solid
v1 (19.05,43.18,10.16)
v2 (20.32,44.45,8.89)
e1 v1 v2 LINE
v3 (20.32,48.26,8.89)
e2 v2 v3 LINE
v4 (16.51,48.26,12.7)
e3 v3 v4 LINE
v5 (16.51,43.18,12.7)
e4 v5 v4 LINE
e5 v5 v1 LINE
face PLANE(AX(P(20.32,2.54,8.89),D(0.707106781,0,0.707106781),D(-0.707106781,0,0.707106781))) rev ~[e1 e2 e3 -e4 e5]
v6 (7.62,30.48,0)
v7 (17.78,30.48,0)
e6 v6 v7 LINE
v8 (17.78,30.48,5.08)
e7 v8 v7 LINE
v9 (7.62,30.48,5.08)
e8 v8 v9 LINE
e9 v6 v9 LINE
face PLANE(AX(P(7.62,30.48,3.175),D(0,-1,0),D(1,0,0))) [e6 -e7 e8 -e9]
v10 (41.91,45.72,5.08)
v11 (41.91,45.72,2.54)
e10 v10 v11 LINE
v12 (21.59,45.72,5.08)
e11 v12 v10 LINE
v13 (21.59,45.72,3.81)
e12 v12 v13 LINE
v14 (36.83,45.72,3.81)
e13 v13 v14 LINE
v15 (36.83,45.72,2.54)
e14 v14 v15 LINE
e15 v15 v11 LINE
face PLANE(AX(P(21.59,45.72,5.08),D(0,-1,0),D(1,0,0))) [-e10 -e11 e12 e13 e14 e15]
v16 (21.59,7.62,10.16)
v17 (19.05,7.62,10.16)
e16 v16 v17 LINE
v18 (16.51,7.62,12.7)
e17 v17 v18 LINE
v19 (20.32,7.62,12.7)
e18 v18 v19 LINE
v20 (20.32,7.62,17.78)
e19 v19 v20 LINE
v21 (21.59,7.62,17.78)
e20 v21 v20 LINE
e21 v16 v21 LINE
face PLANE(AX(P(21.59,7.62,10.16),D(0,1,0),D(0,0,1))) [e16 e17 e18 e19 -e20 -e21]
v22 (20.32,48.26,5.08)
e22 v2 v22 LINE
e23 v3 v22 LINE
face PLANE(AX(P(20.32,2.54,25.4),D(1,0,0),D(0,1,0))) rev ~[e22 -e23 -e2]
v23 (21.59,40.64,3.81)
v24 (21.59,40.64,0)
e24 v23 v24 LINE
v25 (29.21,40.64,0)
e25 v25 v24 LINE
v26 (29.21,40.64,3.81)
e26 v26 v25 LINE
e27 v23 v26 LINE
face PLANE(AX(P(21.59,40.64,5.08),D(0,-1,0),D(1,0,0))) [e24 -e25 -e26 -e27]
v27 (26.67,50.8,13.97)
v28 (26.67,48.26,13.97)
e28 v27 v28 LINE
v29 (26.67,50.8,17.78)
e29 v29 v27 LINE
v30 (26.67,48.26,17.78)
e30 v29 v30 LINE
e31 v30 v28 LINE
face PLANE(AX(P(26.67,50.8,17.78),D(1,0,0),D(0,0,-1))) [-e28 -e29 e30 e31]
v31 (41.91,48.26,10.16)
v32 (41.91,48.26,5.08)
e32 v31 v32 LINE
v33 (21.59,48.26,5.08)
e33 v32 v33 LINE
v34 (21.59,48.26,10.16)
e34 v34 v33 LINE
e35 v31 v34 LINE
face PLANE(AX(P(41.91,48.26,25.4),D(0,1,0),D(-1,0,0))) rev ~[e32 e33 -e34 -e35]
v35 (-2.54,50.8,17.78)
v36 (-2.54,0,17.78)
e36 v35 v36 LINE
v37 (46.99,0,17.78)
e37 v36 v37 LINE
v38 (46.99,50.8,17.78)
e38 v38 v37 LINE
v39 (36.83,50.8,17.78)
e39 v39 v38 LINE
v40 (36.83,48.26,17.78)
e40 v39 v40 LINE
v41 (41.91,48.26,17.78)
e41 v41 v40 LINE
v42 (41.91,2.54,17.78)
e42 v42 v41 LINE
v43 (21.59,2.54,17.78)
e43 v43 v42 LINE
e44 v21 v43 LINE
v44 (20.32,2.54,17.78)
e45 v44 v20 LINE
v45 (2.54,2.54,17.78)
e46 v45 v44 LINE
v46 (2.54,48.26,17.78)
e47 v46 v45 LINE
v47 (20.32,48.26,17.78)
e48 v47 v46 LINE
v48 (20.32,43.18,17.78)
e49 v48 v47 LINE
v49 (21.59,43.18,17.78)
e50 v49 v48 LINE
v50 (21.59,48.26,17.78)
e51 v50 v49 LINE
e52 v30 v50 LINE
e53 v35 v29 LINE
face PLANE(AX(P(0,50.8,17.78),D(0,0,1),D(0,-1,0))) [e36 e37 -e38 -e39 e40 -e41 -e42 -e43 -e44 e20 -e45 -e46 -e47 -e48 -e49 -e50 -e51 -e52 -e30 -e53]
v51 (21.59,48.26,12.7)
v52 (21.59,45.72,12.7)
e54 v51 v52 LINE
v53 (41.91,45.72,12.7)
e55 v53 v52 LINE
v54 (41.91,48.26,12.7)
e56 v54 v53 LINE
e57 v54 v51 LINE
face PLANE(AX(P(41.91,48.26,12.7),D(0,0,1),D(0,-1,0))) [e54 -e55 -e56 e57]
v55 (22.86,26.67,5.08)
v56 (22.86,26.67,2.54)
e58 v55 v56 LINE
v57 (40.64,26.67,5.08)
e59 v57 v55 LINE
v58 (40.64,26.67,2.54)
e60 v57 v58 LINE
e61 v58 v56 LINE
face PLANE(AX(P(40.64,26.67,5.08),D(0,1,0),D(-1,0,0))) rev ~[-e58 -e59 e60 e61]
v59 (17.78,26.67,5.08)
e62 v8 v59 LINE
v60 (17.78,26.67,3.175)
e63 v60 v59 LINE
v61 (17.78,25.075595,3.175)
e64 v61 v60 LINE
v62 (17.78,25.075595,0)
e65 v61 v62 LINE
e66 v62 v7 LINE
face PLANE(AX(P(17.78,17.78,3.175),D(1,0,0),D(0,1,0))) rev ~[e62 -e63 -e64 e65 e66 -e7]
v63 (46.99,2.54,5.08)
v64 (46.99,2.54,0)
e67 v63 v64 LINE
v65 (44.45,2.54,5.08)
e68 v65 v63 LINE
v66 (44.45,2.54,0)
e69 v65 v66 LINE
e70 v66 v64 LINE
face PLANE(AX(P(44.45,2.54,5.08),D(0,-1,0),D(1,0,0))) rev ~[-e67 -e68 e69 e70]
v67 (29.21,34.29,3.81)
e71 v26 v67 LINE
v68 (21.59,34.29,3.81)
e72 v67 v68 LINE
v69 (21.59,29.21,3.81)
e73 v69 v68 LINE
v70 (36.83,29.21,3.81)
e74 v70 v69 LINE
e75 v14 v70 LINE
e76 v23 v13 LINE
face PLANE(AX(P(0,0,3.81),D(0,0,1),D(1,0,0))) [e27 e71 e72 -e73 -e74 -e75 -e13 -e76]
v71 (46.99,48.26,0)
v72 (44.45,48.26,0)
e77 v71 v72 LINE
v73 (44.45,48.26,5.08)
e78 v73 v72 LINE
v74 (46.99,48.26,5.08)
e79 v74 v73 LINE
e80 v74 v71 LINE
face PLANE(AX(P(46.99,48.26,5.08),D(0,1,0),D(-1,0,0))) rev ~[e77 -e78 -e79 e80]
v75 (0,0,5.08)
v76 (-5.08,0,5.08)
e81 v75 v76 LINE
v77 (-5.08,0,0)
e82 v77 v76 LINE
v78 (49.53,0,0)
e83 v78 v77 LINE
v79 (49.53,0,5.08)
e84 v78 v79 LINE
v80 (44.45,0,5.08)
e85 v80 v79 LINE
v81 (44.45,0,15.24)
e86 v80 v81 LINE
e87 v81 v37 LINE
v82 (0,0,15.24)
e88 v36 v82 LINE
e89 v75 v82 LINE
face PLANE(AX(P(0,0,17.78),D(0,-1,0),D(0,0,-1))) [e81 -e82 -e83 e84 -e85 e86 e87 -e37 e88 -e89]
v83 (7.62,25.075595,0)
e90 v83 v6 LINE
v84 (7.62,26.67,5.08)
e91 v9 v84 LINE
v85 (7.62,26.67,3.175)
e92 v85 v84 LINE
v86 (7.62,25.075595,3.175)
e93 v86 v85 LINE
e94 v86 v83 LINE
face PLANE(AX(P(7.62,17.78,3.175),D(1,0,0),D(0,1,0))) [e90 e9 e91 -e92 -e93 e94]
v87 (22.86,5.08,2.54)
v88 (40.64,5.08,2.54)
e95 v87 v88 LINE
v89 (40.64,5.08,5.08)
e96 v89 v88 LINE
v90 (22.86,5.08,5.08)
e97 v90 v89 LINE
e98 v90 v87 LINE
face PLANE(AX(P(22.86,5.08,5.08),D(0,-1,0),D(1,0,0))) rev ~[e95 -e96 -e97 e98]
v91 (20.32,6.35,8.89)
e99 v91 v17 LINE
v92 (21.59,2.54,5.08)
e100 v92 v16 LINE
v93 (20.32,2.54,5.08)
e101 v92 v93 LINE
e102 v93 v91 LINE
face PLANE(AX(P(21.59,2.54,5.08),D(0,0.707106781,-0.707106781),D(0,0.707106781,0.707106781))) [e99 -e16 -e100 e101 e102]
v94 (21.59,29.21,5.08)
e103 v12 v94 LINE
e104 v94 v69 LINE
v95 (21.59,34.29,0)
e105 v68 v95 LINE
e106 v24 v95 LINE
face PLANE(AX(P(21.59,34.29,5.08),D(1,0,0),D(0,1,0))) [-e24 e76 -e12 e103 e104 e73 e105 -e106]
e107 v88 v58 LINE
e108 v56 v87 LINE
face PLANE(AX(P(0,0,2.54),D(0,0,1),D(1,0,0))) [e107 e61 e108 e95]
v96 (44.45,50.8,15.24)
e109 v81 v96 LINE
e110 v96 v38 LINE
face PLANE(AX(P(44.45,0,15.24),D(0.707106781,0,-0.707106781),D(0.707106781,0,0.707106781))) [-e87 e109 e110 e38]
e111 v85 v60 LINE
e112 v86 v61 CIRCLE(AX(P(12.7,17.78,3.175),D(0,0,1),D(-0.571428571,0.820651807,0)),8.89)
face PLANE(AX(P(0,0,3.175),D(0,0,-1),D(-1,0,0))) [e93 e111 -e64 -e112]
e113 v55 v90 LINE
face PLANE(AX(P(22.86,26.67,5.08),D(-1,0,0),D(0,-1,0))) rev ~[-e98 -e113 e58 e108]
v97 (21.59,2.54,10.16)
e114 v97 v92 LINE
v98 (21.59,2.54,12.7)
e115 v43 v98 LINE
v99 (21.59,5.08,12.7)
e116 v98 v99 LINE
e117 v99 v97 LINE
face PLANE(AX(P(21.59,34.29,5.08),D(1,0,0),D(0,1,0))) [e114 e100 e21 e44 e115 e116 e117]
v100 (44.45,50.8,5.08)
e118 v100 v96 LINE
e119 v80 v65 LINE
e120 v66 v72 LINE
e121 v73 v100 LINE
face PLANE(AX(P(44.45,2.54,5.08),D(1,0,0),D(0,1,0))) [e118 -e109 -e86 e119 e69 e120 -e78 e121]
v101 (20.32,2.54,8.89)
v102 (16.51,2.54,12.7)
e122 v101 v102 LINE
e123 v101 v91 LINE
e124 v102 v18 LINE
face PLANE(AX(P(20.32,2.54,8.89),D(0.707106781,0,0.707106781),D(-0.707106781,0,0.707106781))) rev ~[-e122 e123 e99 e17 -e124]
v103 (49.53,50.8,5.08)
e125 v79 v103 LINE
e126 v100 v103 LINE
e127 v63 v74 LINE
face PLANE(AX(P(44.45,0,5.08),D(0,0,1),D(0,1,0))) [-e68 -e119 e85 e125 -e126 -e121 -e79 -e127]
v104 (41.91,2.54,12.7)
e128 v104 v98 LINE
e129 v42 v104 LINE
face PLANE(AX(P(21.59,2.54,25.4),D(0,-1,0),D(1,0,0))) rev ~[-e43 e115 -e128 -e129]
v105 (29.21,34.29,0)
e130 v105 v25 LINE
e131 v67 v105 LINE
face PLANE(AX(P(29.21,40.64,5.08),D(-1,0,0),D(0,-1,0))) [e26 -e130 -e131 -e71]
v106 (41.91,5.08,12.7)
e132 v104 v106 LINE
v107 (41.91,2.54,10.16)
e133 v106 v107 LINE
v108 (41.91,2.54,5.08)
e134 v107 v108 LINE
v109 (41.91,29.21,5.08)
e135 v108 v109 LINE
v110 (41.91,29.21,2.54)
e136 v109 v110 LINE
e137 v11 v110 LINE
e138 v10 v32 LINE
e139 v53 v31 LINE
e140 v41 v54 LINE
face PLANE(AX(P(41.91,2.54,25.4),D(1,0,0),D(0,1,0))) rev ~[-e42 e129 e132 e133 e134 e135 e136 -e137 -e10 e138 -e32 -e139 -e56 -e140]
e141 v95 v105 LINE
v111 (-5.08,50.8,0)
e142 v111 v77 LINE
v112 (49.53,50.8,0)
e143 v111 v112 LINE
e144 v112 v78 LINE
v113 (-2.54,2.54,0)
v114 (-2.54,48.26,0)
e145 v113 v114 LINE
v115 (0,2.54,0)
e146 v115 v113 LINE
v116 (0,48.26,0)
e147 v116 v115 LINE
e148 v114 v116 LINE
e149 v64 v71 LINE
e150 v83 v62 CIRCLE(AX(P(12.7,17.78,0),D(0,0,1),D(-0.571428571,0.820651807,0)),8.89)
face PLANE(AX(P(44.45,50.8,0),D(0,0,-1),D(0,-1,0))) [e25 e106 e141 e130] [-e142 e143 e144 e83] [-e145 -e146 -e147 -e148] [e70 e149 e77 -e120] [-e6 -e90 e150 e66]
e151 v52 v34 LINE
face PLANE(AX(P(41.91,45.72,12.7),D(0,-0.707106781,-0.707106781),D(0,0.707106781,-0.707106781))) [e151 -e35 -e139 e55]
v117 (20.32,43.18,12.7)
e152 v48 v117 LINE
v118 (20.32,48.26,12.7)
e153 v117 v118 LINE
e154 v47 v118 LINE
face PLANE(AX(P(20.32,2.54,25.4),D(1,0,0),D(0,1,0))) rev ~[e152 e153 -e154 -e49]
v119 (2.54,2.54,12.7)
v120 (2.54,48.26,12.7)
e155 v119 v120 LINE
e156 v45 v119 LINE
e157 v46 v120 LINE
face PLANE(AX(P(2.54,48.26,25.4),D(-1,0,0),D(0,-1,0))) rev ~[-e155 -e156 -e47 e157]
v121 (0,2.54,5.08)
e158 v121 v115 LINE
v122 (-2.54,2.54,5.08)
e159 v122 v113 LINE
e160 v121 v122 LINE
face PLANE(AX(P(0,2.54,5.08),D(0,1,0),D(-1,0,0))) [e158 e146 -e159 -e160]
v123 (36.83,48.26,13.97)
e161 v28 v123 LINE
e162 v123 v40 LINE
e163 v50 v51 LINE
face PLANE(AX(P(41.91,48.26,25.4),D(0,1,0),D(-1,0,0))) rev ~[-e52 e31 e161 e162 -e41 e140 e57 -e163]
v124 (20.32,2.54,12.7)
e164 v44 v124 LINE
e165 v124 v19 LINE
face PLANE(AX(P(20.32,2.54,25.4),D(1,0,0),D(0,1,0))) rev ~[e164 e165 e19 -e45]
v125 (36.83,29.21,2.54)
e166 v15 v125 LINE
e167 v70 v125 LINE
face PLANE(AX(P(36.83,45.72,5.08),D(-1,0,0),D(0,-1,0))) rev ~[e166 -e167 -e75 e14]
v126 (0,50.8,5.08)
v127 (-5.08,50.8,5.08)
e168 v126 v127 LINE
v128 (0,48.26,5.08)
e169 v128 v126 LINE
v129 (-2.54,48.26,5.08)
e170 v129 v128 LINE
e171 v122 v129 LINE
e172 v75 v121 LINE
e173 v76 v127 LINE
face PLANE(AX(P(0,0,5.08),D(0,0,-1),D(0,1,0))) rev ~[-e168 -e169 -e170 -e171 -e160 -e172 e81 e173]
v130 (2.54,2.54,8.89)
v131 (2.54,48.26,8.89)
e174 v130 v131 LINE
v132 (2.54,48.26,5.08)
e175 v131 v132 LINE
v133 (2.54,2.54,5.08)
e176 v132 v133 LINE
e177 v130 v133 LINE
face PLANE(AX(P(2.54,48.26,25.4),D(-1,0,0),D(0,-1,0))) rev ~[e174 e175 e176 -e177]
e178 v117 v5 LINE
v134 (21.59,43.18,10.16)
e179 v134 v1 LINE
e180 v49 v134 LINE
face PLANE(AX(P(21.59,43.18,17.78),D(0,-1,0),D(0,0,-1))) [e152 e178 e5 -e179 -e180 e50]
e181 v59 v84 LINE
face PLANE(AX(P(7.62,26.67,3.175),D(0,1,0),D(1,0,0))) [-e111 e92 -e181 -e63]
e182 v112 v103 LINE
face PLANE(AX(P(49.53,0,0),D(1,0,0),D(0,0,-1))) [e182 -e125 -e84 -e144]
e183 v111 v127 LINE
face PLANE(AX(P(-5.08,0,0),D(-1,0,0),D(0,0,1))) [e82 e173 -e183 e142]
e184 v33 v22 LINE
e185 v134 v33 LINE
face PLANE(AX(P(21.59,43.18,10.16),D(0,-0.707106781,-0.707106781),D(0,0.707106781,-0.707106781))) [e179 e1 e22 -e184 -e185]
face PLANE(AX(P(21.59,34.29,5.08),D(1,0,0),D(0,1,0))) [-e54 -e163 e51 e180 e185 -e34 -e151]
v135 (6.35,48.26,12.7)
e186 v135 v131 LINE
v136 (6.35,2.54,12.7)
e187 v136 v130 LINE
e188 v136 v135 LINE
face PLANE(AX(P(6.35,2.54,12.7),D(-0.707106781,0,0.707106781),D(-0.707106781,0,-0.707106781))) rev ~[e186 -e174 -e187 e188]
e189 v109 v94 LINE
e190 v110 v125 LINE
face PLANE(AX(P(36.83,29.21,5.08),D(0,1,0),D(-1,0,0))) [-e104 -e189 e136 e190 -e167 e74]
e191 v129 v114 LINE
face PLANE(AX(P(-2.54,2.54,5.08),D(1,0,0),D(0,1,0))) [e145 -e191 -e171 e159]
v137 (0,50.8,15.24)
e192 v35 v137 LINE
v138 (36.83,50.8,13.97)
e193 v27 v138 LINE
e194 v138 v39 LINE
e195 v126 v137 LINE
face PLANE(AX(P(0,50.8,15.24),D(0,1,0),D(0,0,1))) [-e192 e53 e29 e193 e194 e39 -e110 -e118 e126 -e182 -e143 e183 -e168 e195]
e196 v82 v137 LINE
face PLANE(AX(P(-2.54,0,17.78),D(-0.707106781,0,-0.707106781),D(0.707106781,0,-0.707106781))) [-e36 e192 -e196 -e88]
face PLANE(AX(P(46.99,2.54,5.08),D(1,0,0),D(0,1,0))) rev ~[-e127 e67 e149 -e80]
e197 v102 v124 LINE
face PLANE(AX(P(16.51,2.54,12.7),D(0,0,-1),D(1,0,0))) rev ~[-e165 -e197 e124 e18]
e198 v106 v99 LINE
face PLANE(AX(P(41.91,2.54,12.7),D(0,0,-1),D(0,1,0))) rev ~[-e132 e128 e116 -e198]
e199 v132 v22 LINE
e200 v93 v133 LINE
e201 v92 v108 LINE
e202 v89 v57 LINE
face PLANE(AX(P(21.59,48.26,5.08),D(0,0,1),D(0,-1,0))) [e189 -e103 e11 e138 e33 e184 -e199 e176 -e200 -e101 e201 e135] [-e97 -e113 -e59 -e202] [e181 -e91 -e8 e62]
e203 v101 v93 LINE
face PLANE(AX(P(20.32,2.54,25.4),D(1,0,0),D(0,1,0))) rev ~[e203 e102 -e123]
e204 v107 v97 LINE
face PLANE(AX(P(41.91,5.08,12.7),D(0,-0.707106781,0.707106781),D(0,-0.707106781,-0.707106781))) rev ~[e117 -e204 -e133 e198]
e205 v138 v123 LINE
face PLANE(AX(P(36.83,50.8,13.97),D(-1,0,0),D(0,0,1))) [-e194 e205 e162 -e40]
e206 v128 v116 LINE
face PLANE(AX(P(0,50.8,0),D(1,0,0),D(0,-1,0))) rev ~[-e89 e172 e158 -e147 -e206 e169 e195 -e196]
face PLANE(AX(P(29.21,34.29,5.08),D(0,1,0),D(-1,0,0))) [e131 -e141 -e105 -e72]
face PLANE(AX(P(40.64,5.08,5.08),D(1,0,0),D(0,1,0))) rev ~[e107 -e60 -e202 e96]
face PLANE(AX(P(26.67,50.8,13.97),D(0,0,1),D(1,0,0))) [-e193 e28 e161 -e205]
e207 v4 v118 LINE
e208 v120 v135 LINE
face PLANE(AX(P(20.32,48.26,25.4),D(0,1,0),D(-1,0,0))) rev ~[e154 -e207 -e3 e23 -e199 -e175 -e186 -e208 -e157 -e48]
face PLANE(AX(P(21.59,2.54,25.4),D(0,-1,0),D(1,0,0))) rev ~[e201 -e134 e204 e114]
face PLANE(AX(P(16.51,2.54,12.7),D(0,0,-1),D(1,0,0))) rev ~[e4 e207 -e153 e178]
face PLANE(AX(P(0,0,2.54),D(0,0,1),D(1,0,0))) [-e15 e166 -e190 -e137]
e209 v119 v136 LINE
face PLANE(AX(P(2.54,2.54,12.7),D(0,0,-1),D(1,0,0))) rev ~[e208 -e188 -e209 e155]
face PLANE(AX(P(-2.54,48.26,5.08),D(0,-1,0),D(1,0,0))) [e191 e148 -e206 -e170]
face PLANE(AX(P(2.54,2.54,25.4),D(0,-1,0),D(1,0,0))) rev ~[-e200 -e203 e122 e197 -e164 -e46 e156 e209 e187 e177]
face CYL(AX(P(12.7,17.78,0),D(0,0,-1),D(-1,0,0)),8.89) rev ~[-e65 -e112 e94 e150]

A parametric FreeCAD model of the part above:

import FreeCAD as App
import Part
import Sketcher

V = App.Vector
Q = App.Units.Quantity


def add_polygon(sketch, points):
    """Adds a closed chain of lines whose ends are joined by coincident constraints."""
    first, n = sketch.GeometryCount, len(points)
    for a, b in zip(points, points[1:] + points[:1]):
        sketch.addGeometry(Part.LineSegment(App.Vector(*a, 0), App.Vector(*b, 0)), False)
    for i in range(n):
        sketch.addConstraint(Sketcher.Constraint("Coincident", first + i, 2, first + (i + 1) % n, 1))

doc = App.newDocument("Part")
body = doc.addObject("PartDesign::Body", "Body")

sketch1 = body.newObject("Sketcher::SketchObject", "Sketch")
sketch1.AttachmentSupport = (doc.getObject("XY_Plane"), [""])
sketch1.MapMode = "FlatFace"
add_polygon(sketch1, [(0, 51), (0, 0), (44, 0), (44, 51)])
sketch1.addConstraint([
    Sketcher.Constraint("Vertical", 0),
    Sketcher.Constraint("Horizontal", 1),
    Sketcher.Constraint("Vertical", 2),
    Sketcher.Constraint("Horizontal", 3),
    Sketcher.Constraint("Coincident", 0, 2, -1, 1),
    Sketcher.Constraint("DistanceY", 0, 2, 0, 1, Q("2 in")),
    Sketcher.Constraint("DistanceX", 1, 1, 1, 2, Q("1.75 in")),
])
pad1 = body.newObject("PartDesign::Pad", "Pad")
pad1.Profile = sketch1
pad1.Length = Q("1 in")

sketch2 = body.newObject("Sketcher::SketchObject", "Sketch001")
sketch2.AttachmentSupport = (doc.getObject("XY_Plane"), [""])
sketch2.MapMode = "FlatFace"
sketch2.AttachmentOffset = App.Placement(V(0, 0, 1 * 25.4), App.Rotation())
add_polygon(sketch2, [(3, 48), (3, 3), (20, 3), (20, 48)])
add_polygon(sketch2, [(22, 48), (22, 3), (42, 3), (42, 48)])
sketch2.addConstraint([
    Sketcher.Constraint("Vertical", 0),
    Sketcher.Constraint("Horizontal", 1),
    Sketcher.Constraint("Vertical", 2),
    Sketcher.Constraint("Horizontal", 3),
    Sketcher.Constraint("Vertical", 4),
    Sketcher.Constraint("Horizontal", 5),
    Sketcher.Constraint("Vertical", 6),
    Sketcher.Constraint("Horizontal", 7),
    Sketcher.Constraint("Horizontal", 1, 2, 4, 2),
    Sketcher.Constraint("Horizontal", 3, 2, 6, 2),
    Sketcher.Constraint("DistanceX", 5, 1, 5, 2, Q("0.8 in")),
    Sketcher.Constraint("DistanceX", -1, 1, 0, 2, Q("0.1 in")),
    Sketcher.Constraint("DistanceY", -1, 1, 0, 2, Q("0.1 in")),
    Sketcher.Constraint("DistanceX", -1, 1, 1, 2, Q("0.8 in")),
    Sketcher.Constraint("DistanceY", 0, 2, 0, 1, Q("1.8 in")),
    Sketcher.Constraint("DistanceX", -1, 1, 4, 2, Q("0.85 in")),
])
pocket1 = body.newObject("PartDesign::Pocket", "Pocket")
pocket1.Profile = sketch2
pocket1.Length = Q("0.8 in")

sketch3 = body.newObject("Sketcher::SketchObject", "Sketch002")
sketch3.AttachmentSupport = (doc.getObject("XY_Plane"), [""])
sketch3.MapMode = "FlatFace"
sketch3.addGeometry(Part.Circle(V(13, 18, 0), V(0, 0, 1), 9), False)
sketch3.addConstraint([
    Sketcher.Constraint("Diameter", 0, Q("0.7 in")),
    Sketcher.Constraint("DistanceX", -1, 1, 0, 3, Q("0.5 in")),
    Sketcher.Constraint("DistanceY", -1, 1, 0, 3, Q("0.7 in")),
])
pocket2 = body.newObject("PartDesign::Pocket", "Pocket001")
pocket2.Profile = sketch3
pocket2.Length = Q("0.125 in")
pocket2.Reversed = True

sketch4 = body.newObject("Sketcher::SketchObject", "Sketch003")
sketch4.AttachmentSupport = (doc.getObject("XY_Plane"), [""])
sketch4.MapMode = "FlatFace"
sketch4.AttachmentOffset = App.Placement(V(0, 0, 0.125 * 25.4), App.Rotation())
add_polygon(sketch4, [(8, 18), (8, 30), (18, 30), (18, 18)])
sketch4.addConstraint([
    Sketcher.Constraint("Vertical", 0),
    Sketcher.Constraint("Horizontal", 1),
    Sketcher.Constraint("Vertical", 2),
    Sketcher.Constraint("Horizontal", 3),
    Sketcher.Constraint("DistanceY", 0, 1, 0, 2, Q("0.5 in")),
    Sketcher.Constraint("DistanceX", 1, 1, 1, 2, Q("0.4 in")),
    Sketcher.Constraint("DistanceX", -1, 1, 0, 2, Q("0.3 in")),
    Sketcher.Constraint("DistanceY", -1, 1, 0, 2, Q("1.2 in")),
])
pocket3 = body.newObject("PartDesign::Pocket", "Pocket002")
pocket3.Profile = sketch4
pocket3.Length = Q("0.2 in")

sketch5 = body.newObject("Sketcher::SketchObject", "Sketch004")
sketch5.AttachmentSupport = (doc.getObject("XY_Plane"), [""])
sketch5.MapMode = "FlatFace"
sketch5.AttachmentOffset = App.Placement(V(0, 0, 0.125 * 25.4), App.Rotation())
add_polygon(sketch5, [(17.8, 26.7), (7.6, 26.7), (7.6, 30.5), (17.8, 30.5)])
sketch5.addConstraint([
    Sketcher.Constraint("Horizontal", 0),
    Sketcher.Constraint("Vertical", 1),
    Sketcher.Constraint("Horizontal", 2),
    Sketcher.Constraint("Vertical", 3),
    Sketcher.Constraint("DistanceY", 1, 1, 1, 2, Q("0.15 in")),
    Sketcher.Constraint("DistanceX", 0, 2, 0, 1, Q("0.4 in")),
    Sketcher.Constraint("DistanceX", -1, 1, 0, 2, Q("0.3 in")),
    Sketcher.Constraint("DistanceY", -1, 1, 1, 2, Q("1.2 in")),
])
pocket4 = body.newObject("PartDesign::Pocket", "Pocket003")
pocket4.Profile = sketch5
pocket4.Length = Q("0.1 in")
pocket4.Reversed = True

sketch6 = body.newObject("Sketcher::SketchObject", "Sketch005")
sketch6.AttachmentSupport = (doc.getObject("YZ_Plane"), [""])
sketch6.MapMode = "FlatFace"
sketch6.AttachmentOffset = App.Placement(V(0, 0, 1.65 * 25.4), App.Rotation())
add_polygon(sketch6, [(2.5, 10.2), (2.5, 12.7), (5.1, 12.7)])
add_polygon(sketch6, [(45.7, 12.7), (48.3, 12.7), (48.3, 10.2)])
sketch6.addConstraint([
    Sketcher.Constraint("Vertical", 0),
    Sketcher.Constraint("Horizontal", 1),
    Sketcher.Constraint("Horizontal", 3),
    Sketcher.Constraint("Vertical", 4),
    Sketcher.Constraint("Perpendicular", 2, 5),
    Sketcher.Constraint("Horizontal", 1, 2, 3, 2),
    Sketcher.Constraint("Horizontal", 2, 2, 4, 2),
    Sketcher.Constraint("Equal", 1, 3),
    Sketcher.Constraint("DistanceX", 1, 1, 1, 2, Q("0.1 in")),
    Sketcher.Constraint("DistanceX", -1, 1, 0, 2, Q("0.1 in")),
    Sketcher.Constraint("DistanceY", -1, 1, 0, 2, Q("0.5 in")),
    Sketcher.Constraint("DistanceX", -1, 1, 3, 2, Q("1.9 in")),
])
pad2 = body.newObject("PartDesign::Pad", "Pad001")
pad2.Profile = sketch6
pad2.Length = Q("0.8 in")
pad2.Reversed = True

sketch7 = body.newObject("Sketcher::SketchObject", "Sketch006")
sketch7.AttachmentSupport = (doc.getObject("XZ_Plane"), [""])
sketch7.MapMode = "FlatFace"
sketch7.AttachmentOffset = App.Placement(V(0, 0, -0.1 * 25.4), App.Rotation())
add_polygon(sketch7, [(2.5, 8.9), (2.5, 12.7), (6.3, 12.7)])
add_polygon(sketch7, [(20.3, 12.7), (20.3, 8.9), (16.5, 12.7)])
sketch7.addConstraint([
    Sketcher.Constraint("Vertical", 0),
    Sketcher.Constraint("Horizontal", 1),
    Sketcher.Constraint("Vertical", 3),
    Sketcher.Constraint("Horizontal", 5),
    Sketcher.Constraint("Perpendicular", 2, 4),
    Sketcher.Constraint("Horizontal", 2, 2, 3, 2),
    Sketcher.Constraint("Horizontal", 1, 2, 4, 2),
    Sketcher.Constraint("Equal", 1, 5),
    Sketcher.Constraint("DistanceX", 1, 1, 1, 2, Q("0.15 in")),
    Sketcher.Constraint("DistanceX", -1, 1, 0, 2, Q("0.1 in")),
    Sketcher.Constraint("DistanceY", -1, 1, 0, 2, Q("0.5 in")),
    Sketcher.Constraint("DistanceX", -1, 1, 3, 2, Q("0.8 in")),
])
pad3 = body.newObject("PartDesign::Pad", "Pad002")
pad3.Profile = sketch7
pad3.Length = Q("1.8 in")
pad3.Reversed = True

sketch8 = body.newObject("Sketcher::SketchObject", "Sketch007")
sketch8.AttachmentSupport = (doc.getObject("YZ_Plane"), [""])
sketch8.MapMode = "FlatFace"
add_polygon(sketch8, [(51, 5), (51, 0), (0, 0), (0, 5)])
sketch8.addConstraint([
    Sketcher.Constraint("Vertical", 0),
    Sketcher.Constraint("Horizontal", 1),
    Sketcher.Constraint("Vertical", 2),
    Sketcher.Constraint("Horizontal", 3),
    Sketcher.Constraint("Coincident", 1, 2, -1, 1),
    Sketcher.Constraint("DistanceY", 0, 2, 0, 1, Q("0.2 in")),
    Sketcher.Constraint("DistanceX", 1, 2, 1, 1, Q("2 in")),
])
pad4 = body.newObject("PartDesign::Pad", "Pad003")
pad4.Profile = sketch8
pad4.Length = Q("0.2 in")
pad4.Reversed = True

sketch9 = body.newObject("Sketcher::SketchObject", "Sketch008")
sketch9.AttachmentSupport = (doc.getObject("XY_Plane"), [""])
sketch9.MapMode = "FlatFace"
sketch9.AttachmentOffset = App.Placement(V(0, 0, 0.2 * 25.4), App.Rotation())
add_polygon(sketch9, [(0, 2.5), (0, 48.3), (-2.5, 48.3), (-2.5, 2.5)])
sketch9.addConstraint([
    Sketcher.Constraint("Vertical", 0),
    Sketcher.Constraint("Horizontal", 1),
    Sketcher.Constraint("Vertical", 2),
    Sketcher.Constraint("Horizontal", 3),
    Sketcher.Constraint("PointOnObject", 0, 2, -2),
    Sketcher.Constraint("DistanceX", 1, 2, 1, 1, Q("0.1 in")),
    Sketcher.Constraint("DistanceY", -1, 1, 2, 2, Q("0.1 in")),
    Sketcher.Constraint("DistanceY", 0, 1, 0, 2, Q("1.8 in")),
])
pocket5 = body.newObject("PartDesign::Pocket", "Pocket004")
pocket5.Profile = sketch9
pocket5.Length = Q("0.2 in")

sketch10 = body.newObject("Sketcher::SketchObject", "Sketch009")
sketch10.AttachmentSupport = (doc.getObject("YZ_Plane"), [""])
sketch10.MapMode = "FlatFace"
sketch10.AttachmentOffset = App.Placement(V(0, 0, 1.75 * 25.4), App.Rotation())
add_polygon(sketch10, [(0, 0), (51, 0), (51, 5), (0, 5)])
sketch10.addConstraint([
    Sketcher.Constraint("Horizontal", 0),
    Sketcher.Constraint("Vertical", 1),
    Sketcher.Constraint("Horizontal", 2),
    Sketcher.Constraint("Vertical", 3),
    Sketcher.Constraint("Coincident", 3, 2, -1, 1),
    Sketcher.Constraint("DistanceY", 1, 1, 1, 2, Q("0.2 in")),
    Sketcher.Constraint("DistanceX", 0, 1, 0, 2, Q("2 in")),
])
pad5 = body.newObject("PartDesign::Pad", "Pad004")
pad5.Profile = sketch10
pad5.Length = Q("0.2 in")

sketch11 = body.newObject("Sketcher::SketchObject", "Sketch010")
sketch11.AttachmentSupport = (doc.getObject("XY_Plane"), [""])
sketch11.MapMode = "FlatFace"
sketch11.AttachmentOffset = App.Placement(V(0, 0, 0.2 * 25.4), App.Rotation())
add_polygon(sketch11, [(44.5, 48.3), (44.5, 2.5), (47, 2.5), (47, 48.3)])
sketch11.addConstraint([
    Sketcher.Constraint("Vertical", 0),
    Sketcher.Constraint("Horizontal", 1),
    Sketcher.Constraint("Vertical", 2),
    Sketcher.Constraint("Horizontal", 3),
    Sketcher.Constraint("DistanceX", 1, 1, 1, 2, Q("0.1 in")),
    Sketcher.Constraint("DistanceY", -1, 1, 0, 2, Q("0.1 in")),
    Sketcher.Constraint("DistanceY", 0, 2, 0, 1, Q("1.8 in")),
    Sketcher.Constraint("DistanceX", -1, 1, 0, 2, Q("1.75 in")),
])
pocket6 = body.newObject("PartDesign::Pocket", "Pocket005")
pocket6.Profile = sketch11
pocket6.Length = Q("0.2 in")

sketch12 = body.newObject("Sketcher::SketchObject", "Sketch011")
sketch12.AttachmentSupport = (doc.getObject("YZ_Plane"), [""])
sketch12.MapMode = "FlatFace"
add_polygon(sketch12, [(51, 18), (0, 18), (0, 25), (51, 25)])
sketch12.addConstraint([
    Sketcher.Constraint("Horizontal", 0),
    Sketcher.Constraint("Vertical", 1),
    Sketcher.Constraint("Horizontal", 2),
    Sketcher.Constraint("Vertical", 3),
    Sketcher.Constraint("PointOnObject", 0, 2, -2),
    Sketcher.Constraint("DistanceY", 1, 1, 1, 2, Q("0.3 in")),
    Sketcher.Constraint("DistanceX", 0, 2, 0, 1, Q("2 in")),
    Sketcher.Constraint("DistanceY", -1, 1, 1, 2, Q("1 in")),
])
pocket7 = body.newObject("PartDesign::Pocket", "Pocket006")
pocket7.Profile = sketch12
pocket7.Length = Q("2 in")
pocket7.Reversed = True

sketch13 = body.newObject("Sketcher::SketchObject", "Sketch012")
sketch13.AttachmentSupport = (doc.getObject("XY_Plane"), [""])
sketch13.MapMode = "FlatFace"
sketch13.AttachmentOffset = App.Placement(V(0, 0, 0.2 * 25.4), App.Rotation())
add_polygon(sketch13, [(23, 27), (23, 5), (41, 5), (41, 27)])
sketch13.addConstraint([
    Sketcher.Constraint("Vertical", 0),
    Sketcher.Constraint("Horizontal", 1),
    Sketcher.Constraint("Vertical", 2),
    Sketcher.Constraint("Horizontal", 3),
    Sketcher.Constraint("DistanceX", 1, 1, 1, 2, Q("0.7 in")),
    Sketcher.Constraint("DistanceY", 0, 2, 0, 1, Q("0.85 in")),
    Sketcher.Constraint("DistanceX", -1, 1, 0, 2, Q("0.9 in")),
    Sketcher.Constraint("DistanceY", -1, 1, 0, 2, Q("0.2 in")),
])
pocket8 = body.newObject("PartDesign::Pocket", "Pocket007")
pocket8.Profile = sketch13
pocket8.Length = Q("0.1 in")

sketch14 = body.newObject("Sketcher::SketchObject", "Sketch013")
sketch14.AttachmentSupport = (doc.getObject("XY_Plane"), [""])
sketch14.MapMode = "FlatFace"
sketch14.AttachmentOffset = App.Placement(V(0, 0, 0.2 * 25.4), App.Rotation())
add_polygon(sketch14, [(22, 41), (22, 34), (29, 34), (29, 41)])
sketch14.addConstraint([
    Sketcher.Constraint("Vertical", 0),
    Sketcher.Constraint("Horizontal", 1),
    Sketcher.Constraint("Vertical", 2),
    Sketcher.Constraint("Horizontal", 3),
    Sketcher.Constraint("DistanceX", 1, 1, 1, 2, Q("0.3 in")),
    Sketcher.Constraint("DistanceY", 0, 2, 0, 1, Q("0.25 in")),
    Sketcher.Constraint("DistanceY", -1, 1, 2, 2, Q("1.6 in")),
    Sketcher.Constraint("DistanceX", -1, 1, 0, 2, Q("0.85 in")),
])
pocket9 = body.newObject("PartDesign::Pocket", "Pocket008")
pocket9.Profile = sketch14
pocket9.Length = Q("1 in")

sketch15 = body.newObject("Sketcher::SketchObject", "Sketch014")
sketch15.AttachmentSupport = (doc.getObject("XY_Plane"), [""])
sketch15.MapMode = "FlatFace"
sketch15.AttachmentOffset = App.Placement(V(0, 0, 0.2 * 25.4), App.Rotation())
add_polygon(sketch15, [(37, 46), (37, 29), (42, 29), (42, 46)])
sketch15.addConstraint([
    Sketcher.Constraint("Vertical", 0),
    Sketcher.Constraint("Horizontal", 1),
    Sketcher.Constraint("Vertical", 2),
    Sketcher.Constraint("Horizontal", 3),
    Sketcher.Constraint("DistanceX", 1, 1, 1, 2, Q("0.2 in")),
    Sketcher.Constraint("DistanceY", 0, 2, 0, 1, Q("0.65 in")),
    Sketcher.Constraint("DistanceY", -1, 1, 2, 2, Q("1.8 in")),
    Sketcher.Constraint("DistanceX", -1, 1, 0, 2, Q("1.45 in")),
])
pocket10 = body.newObject("PartDesign::Pocket", "Pocket009")
pocket10.Profile = sketch15
pocket10.Length = Q("0.1 in")

sketch16 = body.newObject("Sketcher::SketchObject", "Sketch015")
sketch16.AttachmentSupport = (doc.getObject("XY_Plane"), [""])
sketch16.MapMode = "FlatFace"
sketch16.AttachmentOffset = App.Placement(V(0, 0, 0.2 * 25.4), App.Rotation())
add_polygon(sketch16, [(22, 34), (22, 29), (37, 29), (37, 46), (22, 46), (22, 41), (29, 41), (29, 34)])
sketch16.addConstraint([
    Sketcher.Constraint("Vertical", 0),
    Sketcher.Constraint("Horizontal", 1),
    Sketcher.Constraint("Vertical", 2),
    Sketcher.Constraint("Horizontal", 3),
    Sketcher.Constraint("Vertical", 4),
    Sketcher.Constraint("Horizontal", 5),
    Sketcher.Constraint("Vertical", 6),
    Sketcher.Constraint("Horizontal", 7),
    Sketcher.Constraint("Vertical", 0, 2, 3, 2),
    Sketcher.Constraint("Equal", 0, 4),
    Sketcher.Constraint("DistanceX", 5, 1, 5, 2, Q("0.3 in")),
    Sketcher.Constraint("DistanceY", 0, 2, 0, 1, Q("0.2 in")),
    Sketcher.Constraint("DistanceY", 2, 1, 2, 2, Q("0.65 in")),
    Sketcher.Constraint("DistanceX", 5, 2, 2, 2, Q("0.3 in")),
    Sketcher.Constraint("DistanceY", -1, 1, 2, 2, Q("1.8 in")),
    Sketcher.Constraint("DistanceX", -1, 1, 0, 2, Q("0.85 in")),
])
pocket11 = body.newObject("PartDesign::Pocket", "Pocket010")
pocket11.Profile = sketch16
pocket11.Length = Q("0.05 in")

sketch17 = body.newObject("Sketcher::SketchObject", "Sketch016")
sketch17.AttachmentSupport = (doc.getObject("YZ_Plane"), [""])
sketch17.MapMode = "FlatFace"
sketch17.AttachmentOffset = App.Placement(V(0, 0, 1.75 * 25.4), App.Rotation())
add_polygon(sketch17, [(0, 15.2), (50.8, 15.2), (50.8, 17.8), (0, 17.8)])
sketch17.addConstraint([
    Sketcher.Constraint("Horizontal", 0),
    Sketcher.Constraint("Vertical", 1),
    Sketcher.Constraint("Horizontal", 2),
    Sketcher.Constraint("Vertical", 3),
    Sketcher.Constraint("PointOnObject", 2, 2, -2),
    Sketcher.Constraint("DistanceY", 1, 1, 1, 2, Q("0.1 in")),
    Sketcher.Constraint("DistanceX", 0, 1, 0, 2, Q("2 in")),
    Sketcher.Constraint("DistanceY", -1, 1, 0, 2, Q("0.6 in")),
])
pad6 = body.newObject("PartDesign::Pad", "Pad005")
pad6.Profile = sketch17
pad6.Length = Q("0.1 in")

sketch18 = body.newObject("Sketcher::SketchObject", "Sketch017")
sketch18.AttachmentSupport = (doc.getObject("YZ_Plane"), [""])
sketch18.MapMode = "FlatFace"
add_polygon(sketch18, [(50.8, 17.8), (50.8, 15.2), (0, 15.2), (0, 17.8)])
sketch18.addConstraint([
    Sketcher.Constraint("Vertical", 0),
    Sketcher.Constraint("Horizontal", 1),
    Sketcher.Constraint("Vertical", 2),
    Sketcher.Constraint("Horizontal", 3),
    Sketcher.Constraint("PointOnObject", 1, 2, -2),
    Sketcher.Constraint("DistanceY", 0, 2, 0, 1, Q("0.1 in")),
    Sketcher.Constraint("DistanceX", 1, 2, 1, 1, Q("2 in")),
    Sketcher.Constraint("DistanceY", -1, 1, 0, 2, Q("0.6 in")),
])
pad7 = body.newObject("PartDesign::Pad", "Pad006")
pad7.Profile = sketch18
pad7.Length = Q("0.1 in")
pad7.Reversed = True

sketch19 = body.newObject("Sketcher::SketchObject", "Sketch018")
sketch19.AttachmentSupport = (doc.getObject("XZ_Plane"), [""])
sketch19.MapMode = "FlatFace"
add_polygon(sketch19, [(0, 15.2), (-2.5, 17.8), (-2.5, 15.2)])
add_polygon(sketch19, [(47, 17.8), (44.5, 15.2), (47, 15.2)])
sketch19.addConstraint([
    Sketcher.Constraint("Vertical", 1),
    Sketcher.Constraint("Horizontal", 2),
    Sketcher.Constraint("Horizontal", 4),
    Sketcher.Constraint("Vertical", 5),
    Sketcher.Constraint("PointOnObject", 2, 2, -2),
    Sketcher.Constraint("Perpendicular", 0, 3),
    Sketcher.Constraint("Horizontal", 2, 2, 3, 2),
    Sketcher.Constraint("Horizontal", 0, 2, 5, 2),
    Sketcher.Constraint("Equal", 2, 4),
    Sketcher.Constraint("DistanceX", 2, 1, 2, 2, Q("0.1 in")),
    Sketcher.Constraint("DistanceY", -1, 1, 0, 2, Q("0.7 in")),
    Sketcher.Constraint("DistanceX", -1, 1, 3, 2, Q("1.75 in")),
])
pocket12 = body.newObject("PartDesign::Pocket", "Pocket011")
pocket12.Profile = sketch19
pocket12.Length = Q("2 in")

sketch20 = body.newObject("Sketcher::SketchObject", "Sketch019")
sketch20.AttachmentSupport = (doc.getObject("XZ_Plane"), [""])
sketch20.MapMode = "FlatFace"
sketch20.AttachmentOffset = App.Placement(V(0, 0, -2 * 25.4), App.Rotation())
add_polygon(sketch20, [(26.7, 17.8), (36.8, 17.8), (36.8, 14), (26.7, 14)])
sketch20.addConstraint([
    Sketcher.Constraint("Horizontal", 0),
    Sketcher.Constraint("Vertical", 1),
    Sketcher.Constraint("Horizontal", 2),
    Sketcher.Constraint("Vertical", 3),
    Sketcher.Constraint("DistanceX", 0, 1, 0, 2, Q("0.4 in")),
    Sketcher.Constraint("DistanceY", 1, 2, 1, 1, Q("0.15 in")),
    Sketcher.Constraint("DistanceY", -1, 1, 0, 2, Q("0.7 in")),
    Sketcher.Constraint("DistanceX", -1, 1, 0, 2, Q("1.45 in")),
])
pocket13 = body.newObject("PartDesign::Pocket", "Pocket012")
pocket13.Profile = sketch20
pocket13.Length = Q("0.1 in")
pocket13.Reversed = True

sketch21 = body.newObject("Sketcher::SketchObject", "Sketch020")
sketch21.AttachmentSupport = (doc.getObject("YZ_Plane"), [""])
sketch21.MapMode = "FlatFace"
sketch21.AttachmentOffset = App.Placement(V(0, 0, 0.85 * 25.4), App.Rotation())
add_polygon(sketch21, [(8, 10), (3, 5), (48, 5), (43, 10), (43, 18), (8, 18)])
sketch21.addConstraint([
    Sketcher.Constraint("Horizontal", 1),
    Sketcher.Constraint("Vertical", 3),
    Sketcher.Constraint("Horizontal", 4),
    Sketcher.Constraint("Vertical", 5),
    Sketcher.Constraint("Perpendicular", 0, 2),
    Sketcher.Constraint("Horizontal", 2, 2, 5, 2),
    Sketcher.Constraint("Equal", 0, 2),
    Sketcher.Constraint("DistanceY", -1, 1, 0, 2, Q("0.2 in")),
    Sketcher.Constraint("DistanceX", 2, 2, 1, 2, Q("0.2 in")),
    Sketcher.Constraint("DistanceX", 1, 1, 1, 2, Q("1.8 in")),
    Sketcher.Constraint("DistanceY", 3, 1, 3, 2, Q("0.3 in")),
    Sketcher.Constraint("DistanceX", -1, 1, 0, 2, Q("0.1 in")),
])
pocket14 = body.newObject("PartDesign::Pocket", "Pocket013")
pocket14.Profile = sketch21
pocket14.Length = Q("0.2 in")

doc.recompute()
